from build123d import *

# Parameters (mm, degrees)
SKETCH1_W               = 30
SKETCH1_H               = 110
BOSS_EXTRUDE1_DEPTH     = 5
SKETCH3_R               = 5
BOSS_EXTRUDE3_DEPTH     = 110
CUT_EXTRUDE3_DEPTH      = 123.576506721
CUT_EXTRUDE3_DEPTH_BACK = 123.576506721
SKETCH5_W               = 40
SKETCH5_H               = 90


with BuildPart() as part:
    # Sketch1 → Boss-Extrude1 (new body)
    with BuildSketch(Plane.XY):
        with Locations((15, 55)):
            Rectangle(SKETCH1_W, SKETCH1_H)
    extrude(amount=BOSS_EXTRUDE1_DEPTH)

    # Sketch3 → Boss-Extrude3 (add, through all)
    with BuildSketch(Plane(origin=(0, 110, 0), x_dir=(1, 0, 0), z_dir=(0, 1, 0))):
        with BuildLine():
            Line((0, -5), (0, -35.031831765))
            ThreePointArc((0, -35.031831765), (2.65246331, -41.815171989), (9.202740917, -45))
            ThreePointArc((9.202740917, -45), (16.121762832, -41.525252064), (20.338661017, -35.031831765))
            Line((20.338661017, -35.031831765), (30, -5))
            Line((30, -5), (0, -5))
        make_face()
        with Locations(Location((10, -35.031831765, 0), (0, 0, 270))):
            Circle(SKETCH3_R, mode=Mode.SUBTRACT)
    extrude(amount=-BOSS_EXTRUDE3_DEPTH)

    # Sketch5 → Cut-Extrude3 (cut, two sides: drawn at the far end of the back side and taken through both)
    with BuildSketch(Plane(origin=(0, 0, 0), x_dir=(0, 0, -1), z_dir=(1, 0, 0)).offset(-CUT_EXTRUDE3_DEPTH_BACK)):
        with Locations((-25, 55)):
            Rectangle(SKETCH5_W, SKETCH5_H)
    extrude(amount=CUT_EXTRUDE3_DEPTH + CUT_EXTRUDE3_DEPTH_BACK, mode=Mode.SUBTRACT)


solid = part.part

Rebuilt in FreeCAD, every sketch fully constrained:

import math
import FreeCAD as App
import Part
import Sketcher
from FreeCAD import Vector


def add_polygon(sketch, points):
    """Adds a closed chain of lines whose ends are joined by coincident constraints."""
    first, n = sketch.GeometryCount, len(points)
    for a, b in zip(points, points[1:] + points[:1]):
        sketch.addGeometry(Part.LineSegment(App.Vector(*a, 0), App.Vector(*b, 0)), False)
    for i in range(n):
        sketch.addConstraint(Sketcher.Constraint("Coincident", first + i, 2, first + (i + 1) % n, 1))

doc = App.newDocument("Part")
body = doc.addObject("PartDesign::Body", "Body")

# Sketch on XY plane
sketch1 = body.newObject("Sketcher::SketchObject", "Sketch")
sketch1.AttachmentSupport = (doc.getObject("XY_Plane"), [""])
sketch1.MapMode = "FlatFace"
add_polygon(sketch1, [(0, 110), (0, 0), (30, 0), (30, 110)])  # lines 0-3
sketch1.addConstraint([
    Sketcher.Constraint("Vertical", 0),
    Sketcher.Constraint("Horizontal", 1),
    Sketcher.Constraint("Vertical", 2),
    Sketcher.Constraint("Horizontal", 3),
    Sketcher.Constraint("Coincident", 0, 2, -1, 1),
    Sketcher.Constraint("DistanceX", 1, 1, 1, 2, 30.0),
    Sketcher.Constraint("DistanceY", 0, 2, 0, 1, 110.0),
])
pad1 = body.newObject("PartDesign::Pad", "Pad")
pad1.Profile = sketch1
pad1.Length = 5

# Sketch on XZ plane
sketch2 = body.newObject("Sketcher::SketchObject", "Sketch001")
sketch2.AttachmentSupport = (doc.getObject("XZ_Plane"), [""])
sketch2.MapMode = "FlatFace"
sketch2.AttachmentOffset = App.Placement(Vector(0, 0, -110), App.Rotation())
sketch2.addGeometry([
    Part.LineSegment(Vector(0, 5, 0), Vector(0, 35.031832, 0)),  # 0
    Part.ArcOfCircle(Part.Circle(Vector(10, 35.031832, 0), Vector(0, 0, 1), 10), math.radians(94.572811), math.radians(180)),  # 1
    Part.ArcOfCircle(Part.Circle(Vector(6.253058, 30.500447, 0), Vector(0, 0, 1), 14.796543), math.radians(17.833154), math.radians(78.501078)),  # 2
    Part.LineSegment(Vector(20.338661, 35.031832, 0), Vector(30, 5, 0)),  # 3
    Part.LineSegment(Vector(30, 5, 0), Vector(0, 5, 0)),  # 4
    Part.Circle(Vector(10, 35.031832, 0), Vector(0, 0, 1), 5),  # 5
], False)
sketch2.addConstraint([
    Sketcher.Constraint("Tangent", 0, 2, 1, 2),
    Sketcher.Constraint("Coincident", 1, 1, 2, 2),
    Sketcher.Constraint("Tangent", 2, 1, 3, 1),
    Sketcher.Constraint("Coincident", 3, 2, 4, 1),
    Sketcher.Constraint("Coincident", 4, 2, 0, 1),
    Sketcher.Constraint("Vertical", 0),
    Sketcher.Constraint("Horizontal", 4),
    Sketcher.Constraint("Coincident", 5, 3, 1, 3),
    Sketcher.Constraint("PointOnObject", 0, 2, -2),
    Sketcher.Constraint("Horizontal", 0, 2, 2, 1),
    Sketcher.Constraint("Diameter", 5, 10.0),
    Sketcher.Constraint("Radius", 1, 10.0),
    Sketcher.Constraint("DistanceX", 4, 2, 4, 1, 30.0),
    Sketcher.Constraint("DistanceY", -1, 1, 1, 1, 45.0),
    Sketcher.Constraint("DistanceY", -1, 1, 3, 2, 5.0),
    Sketcher.Constraint("Radius", 2, 14.796543),
    Sketcher.Constraint("DistanceY", 0, 1, 0, 2, 30.031832),
])
pad2 = body.newObject("PartDesign::Pad", "Pad001")
pad2.Profile = sketch2
pad2.Length = 110

# Sketch on YZ plane
sketch3 = body.newObject("Sketcher::SketchObject", "Sketch002")
sketch3.AttachmentSupport = (doc.getObject("YZ_Plane"), [""])
sketch3.MapMode = "FlatFace"
add_polygon(sketch3, [(100, 45), (10, 45), (10, 5), (100, 5)])  # lines 0-3
sketch3.addConstraint([
    Sketcher.Constraint("Horizontal", 0),
    Sketcher.Constraint("Vertical", 1),
    Sketcher.Constraint("Horizontal", 2),
    Sketcher.Constraint("Vertical", 3),
    Sketcher.Constraint("DistanceX", 0, 2, 0, 1, 90.0),
    Sketcher.Constraint("DistanceY", 1, 2, 1, 1, 40.0),
    Sketcher.Constraint("DistanceX", -1, 1, 0, 2, 10.0),
    Sketcher.Constraint("DistanceY", -1, 1, 0, 2, 45.0),
])
pocket1 = body.newObject("PartDesign::Pocket", "Pocket")
pocket1.Profile = sketch3
pocket1.Type = "ThroughAll"
pocket1.Midplane = True

doc.recompute()
